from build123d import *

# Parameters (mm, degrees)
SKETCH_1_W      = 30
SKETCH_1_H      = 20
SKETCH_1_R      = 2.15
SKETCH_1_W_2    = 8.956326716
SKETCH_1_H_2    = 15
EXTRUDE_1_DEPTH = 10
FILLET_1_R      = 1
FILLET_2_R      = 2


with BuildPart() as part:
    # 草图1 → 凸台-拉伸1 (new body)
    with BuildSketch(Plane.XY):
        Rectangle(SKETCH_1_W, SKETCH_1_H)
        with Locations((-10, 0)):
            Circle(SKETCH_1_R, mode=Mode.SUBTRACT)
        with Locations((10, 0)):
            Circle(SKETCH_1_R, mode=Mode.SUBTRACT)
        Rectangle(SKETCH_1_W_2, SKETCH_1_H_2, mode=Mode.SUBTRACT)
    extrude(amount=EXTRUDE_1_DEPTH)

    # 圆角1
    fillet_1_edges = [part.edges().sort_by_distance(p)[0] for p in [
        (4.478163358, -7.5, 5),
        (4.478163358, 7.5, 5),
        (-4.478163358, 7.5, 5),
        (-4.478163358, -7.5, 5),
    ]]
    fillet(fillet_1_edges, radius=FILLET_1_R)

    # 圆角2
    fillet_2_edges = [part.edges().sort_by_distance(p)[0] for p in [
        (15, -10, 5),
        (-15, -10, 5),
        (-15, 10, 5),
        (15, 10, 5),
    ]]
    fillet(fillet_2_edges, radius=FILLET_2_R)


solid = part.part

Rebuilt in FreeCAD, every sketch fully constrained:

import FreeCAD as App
import Part
import Sketcher
from FreeCAD import Vector


def edges_at(feature, points):
    """Names of the edges that pass closest to the given points."""
    edges = feature.Shape.Edges
    near = lambda p: min(range(len(edges)), key=lambda i: edges[i].distToShape(Part.Vertex(*p))[0])
    return sorted({f"Edge{near(p) + 1}" for p in points})

doc = App.newDocument("Part")
body = doc.addObject("PartDesign::Body", "Body")

# Sketch on XY plane
sketch1 = body.newObject("Sketcher::SketchObject", "Sketch")
sketch1.AttachmentSupport = (doc.getObject("XY_Plane"), [""])
sketch1.MapMode = "FlatFace"
sketch1.addGeometry([
    Part.LineSegment(Vector(-15, 10, 0), Vector(-15, -10, 0)),  # 0
    Part.LineSegment(Vector(-15, -10, 0), Vector(15, -10, 0)),  # 1
    Part.LineSegment(Vector(15, -10, 0), Vector(15, 10, 0)),  # 2
    Part.LineSegment(Vector(15, 10, 0), Vector(-15, 10, 0)),  # 3
    Part.Circle(Vector(-10, 0, 0), Vector(0, 0, 1), 2.1),  # 4
    Part.LineSegment(Vector(4.5, -7.5, 0), Vector(-4.5, -7.5, 0)),  # 5
    Part.LineSegment(Vector(-4.5, -7.5, 0), Vector(-4.5, 7.5, 0)),  # 6
    Part.LineSegment(Vector(-4.5, 7.5, 0), Vector(4.5, 7.5, 0)),  # 7
    Part.LineSegment(Vector(4.5, 7.5, 0), Vector(4.5, -7.5, 0)),  # 8
    Part.Circle(Vector(10, 0, 0), Vector(0, 0, 1), 2.1),  # 9
], False)
sketch1.addConstraint([
    Sketcher.Constraint("Coincident", 0, 2, 1, 1),
    Sketcher.Constraint("Coincident", 1, 2, 2, 1),
    Sketcher.Constraint("Coincident", 2, 2, 3, 1),
    Sketcher.Constraint("Coincident", 3, 2, 0, 1),
    Sketcher.Constraint("Coincident", 5, 2, 6, 1),
    Sketcher.Constraint("Coincident", 6, 2, 7, 1),
    Sketcher.Constraint("Coincident", 7, 2, 8, 1),
    Sketcher.Constraint("Coincident", 8, 2, 5, 1),
    Sketcher.Constraint("Vertical", 0),
    Sketcher.Constraint("Horizontal", 1),
    Sketcher.Constraint("Vertical", 2),
    Sketcher.Constraint("Horizontal", 3),
    Sketcher.Constraint("Horizontal", 5),
    Sketcher.Constraint("Vertical", 6),
    Sketcher.Constraint("Horizontal", 7),
    Sketcher.Constraint("Vertical", 8),
    Sketcher.Constraint("Equal", 4, 9),
    Sketcher.Constraint("Symmetric", 4, 3, 9, 3, -1, 1),
    Sketcher.Constraint("Symmetric", 0, 2, 2, 2, -1, 1),
    Sketcher.Constraint("Symmetric", 5, 2, 7, 2, -1, 1),
    Sketcher.Constraint("PointOnObject", 4, 3, -1),
    Sketcher.Constraint("Diameter", 4, 4.3),
    Sketcher.Constraint("DistanceX", 1, 1, 1, 2, 30.0),
    Sketcher.Constraint("DistanceY", 0, 2, 0, 1, 20.0),
    Sketcher.Constraint("DistanceY", 6, 1, 6, 2, 15.0),
    Sketcher.Constraint("DistanceX", 4, 3, -1, 1, 10.0),
    Sketcher.Constraint("DistanceX", 5, 2, 5, 1, 8.956327),
])
pad1 = body.newObject("PartDesign::Pad", "Pad")
pad1.Profile = sketch1
pad1.Length = 10
doc.recompute()

fillet = body.newObject("PartDesign::Fillet", "Fillet")
fillet.Base = (pad1, edges_at(pad1, [
    (4.478, -7.5, 5),
    (4.478, 7.5, 5),
    (-4.478, 7.5, 5),
    (-4.478, -7.5, 5),
]))
fillet.Radius = 1
doc.recompute()

fillet2 = body.newObject("PartDesign::Fillet", "Fillet001")
fillet2.Base = (fillet, edges_at(fillet, [
    (15, -10, 5),
    (-15, -10, 5),
    (-15, 10, 5),
    (15, 10, 5),
]))
fillet2.Radius = 2

doc.recompute()
